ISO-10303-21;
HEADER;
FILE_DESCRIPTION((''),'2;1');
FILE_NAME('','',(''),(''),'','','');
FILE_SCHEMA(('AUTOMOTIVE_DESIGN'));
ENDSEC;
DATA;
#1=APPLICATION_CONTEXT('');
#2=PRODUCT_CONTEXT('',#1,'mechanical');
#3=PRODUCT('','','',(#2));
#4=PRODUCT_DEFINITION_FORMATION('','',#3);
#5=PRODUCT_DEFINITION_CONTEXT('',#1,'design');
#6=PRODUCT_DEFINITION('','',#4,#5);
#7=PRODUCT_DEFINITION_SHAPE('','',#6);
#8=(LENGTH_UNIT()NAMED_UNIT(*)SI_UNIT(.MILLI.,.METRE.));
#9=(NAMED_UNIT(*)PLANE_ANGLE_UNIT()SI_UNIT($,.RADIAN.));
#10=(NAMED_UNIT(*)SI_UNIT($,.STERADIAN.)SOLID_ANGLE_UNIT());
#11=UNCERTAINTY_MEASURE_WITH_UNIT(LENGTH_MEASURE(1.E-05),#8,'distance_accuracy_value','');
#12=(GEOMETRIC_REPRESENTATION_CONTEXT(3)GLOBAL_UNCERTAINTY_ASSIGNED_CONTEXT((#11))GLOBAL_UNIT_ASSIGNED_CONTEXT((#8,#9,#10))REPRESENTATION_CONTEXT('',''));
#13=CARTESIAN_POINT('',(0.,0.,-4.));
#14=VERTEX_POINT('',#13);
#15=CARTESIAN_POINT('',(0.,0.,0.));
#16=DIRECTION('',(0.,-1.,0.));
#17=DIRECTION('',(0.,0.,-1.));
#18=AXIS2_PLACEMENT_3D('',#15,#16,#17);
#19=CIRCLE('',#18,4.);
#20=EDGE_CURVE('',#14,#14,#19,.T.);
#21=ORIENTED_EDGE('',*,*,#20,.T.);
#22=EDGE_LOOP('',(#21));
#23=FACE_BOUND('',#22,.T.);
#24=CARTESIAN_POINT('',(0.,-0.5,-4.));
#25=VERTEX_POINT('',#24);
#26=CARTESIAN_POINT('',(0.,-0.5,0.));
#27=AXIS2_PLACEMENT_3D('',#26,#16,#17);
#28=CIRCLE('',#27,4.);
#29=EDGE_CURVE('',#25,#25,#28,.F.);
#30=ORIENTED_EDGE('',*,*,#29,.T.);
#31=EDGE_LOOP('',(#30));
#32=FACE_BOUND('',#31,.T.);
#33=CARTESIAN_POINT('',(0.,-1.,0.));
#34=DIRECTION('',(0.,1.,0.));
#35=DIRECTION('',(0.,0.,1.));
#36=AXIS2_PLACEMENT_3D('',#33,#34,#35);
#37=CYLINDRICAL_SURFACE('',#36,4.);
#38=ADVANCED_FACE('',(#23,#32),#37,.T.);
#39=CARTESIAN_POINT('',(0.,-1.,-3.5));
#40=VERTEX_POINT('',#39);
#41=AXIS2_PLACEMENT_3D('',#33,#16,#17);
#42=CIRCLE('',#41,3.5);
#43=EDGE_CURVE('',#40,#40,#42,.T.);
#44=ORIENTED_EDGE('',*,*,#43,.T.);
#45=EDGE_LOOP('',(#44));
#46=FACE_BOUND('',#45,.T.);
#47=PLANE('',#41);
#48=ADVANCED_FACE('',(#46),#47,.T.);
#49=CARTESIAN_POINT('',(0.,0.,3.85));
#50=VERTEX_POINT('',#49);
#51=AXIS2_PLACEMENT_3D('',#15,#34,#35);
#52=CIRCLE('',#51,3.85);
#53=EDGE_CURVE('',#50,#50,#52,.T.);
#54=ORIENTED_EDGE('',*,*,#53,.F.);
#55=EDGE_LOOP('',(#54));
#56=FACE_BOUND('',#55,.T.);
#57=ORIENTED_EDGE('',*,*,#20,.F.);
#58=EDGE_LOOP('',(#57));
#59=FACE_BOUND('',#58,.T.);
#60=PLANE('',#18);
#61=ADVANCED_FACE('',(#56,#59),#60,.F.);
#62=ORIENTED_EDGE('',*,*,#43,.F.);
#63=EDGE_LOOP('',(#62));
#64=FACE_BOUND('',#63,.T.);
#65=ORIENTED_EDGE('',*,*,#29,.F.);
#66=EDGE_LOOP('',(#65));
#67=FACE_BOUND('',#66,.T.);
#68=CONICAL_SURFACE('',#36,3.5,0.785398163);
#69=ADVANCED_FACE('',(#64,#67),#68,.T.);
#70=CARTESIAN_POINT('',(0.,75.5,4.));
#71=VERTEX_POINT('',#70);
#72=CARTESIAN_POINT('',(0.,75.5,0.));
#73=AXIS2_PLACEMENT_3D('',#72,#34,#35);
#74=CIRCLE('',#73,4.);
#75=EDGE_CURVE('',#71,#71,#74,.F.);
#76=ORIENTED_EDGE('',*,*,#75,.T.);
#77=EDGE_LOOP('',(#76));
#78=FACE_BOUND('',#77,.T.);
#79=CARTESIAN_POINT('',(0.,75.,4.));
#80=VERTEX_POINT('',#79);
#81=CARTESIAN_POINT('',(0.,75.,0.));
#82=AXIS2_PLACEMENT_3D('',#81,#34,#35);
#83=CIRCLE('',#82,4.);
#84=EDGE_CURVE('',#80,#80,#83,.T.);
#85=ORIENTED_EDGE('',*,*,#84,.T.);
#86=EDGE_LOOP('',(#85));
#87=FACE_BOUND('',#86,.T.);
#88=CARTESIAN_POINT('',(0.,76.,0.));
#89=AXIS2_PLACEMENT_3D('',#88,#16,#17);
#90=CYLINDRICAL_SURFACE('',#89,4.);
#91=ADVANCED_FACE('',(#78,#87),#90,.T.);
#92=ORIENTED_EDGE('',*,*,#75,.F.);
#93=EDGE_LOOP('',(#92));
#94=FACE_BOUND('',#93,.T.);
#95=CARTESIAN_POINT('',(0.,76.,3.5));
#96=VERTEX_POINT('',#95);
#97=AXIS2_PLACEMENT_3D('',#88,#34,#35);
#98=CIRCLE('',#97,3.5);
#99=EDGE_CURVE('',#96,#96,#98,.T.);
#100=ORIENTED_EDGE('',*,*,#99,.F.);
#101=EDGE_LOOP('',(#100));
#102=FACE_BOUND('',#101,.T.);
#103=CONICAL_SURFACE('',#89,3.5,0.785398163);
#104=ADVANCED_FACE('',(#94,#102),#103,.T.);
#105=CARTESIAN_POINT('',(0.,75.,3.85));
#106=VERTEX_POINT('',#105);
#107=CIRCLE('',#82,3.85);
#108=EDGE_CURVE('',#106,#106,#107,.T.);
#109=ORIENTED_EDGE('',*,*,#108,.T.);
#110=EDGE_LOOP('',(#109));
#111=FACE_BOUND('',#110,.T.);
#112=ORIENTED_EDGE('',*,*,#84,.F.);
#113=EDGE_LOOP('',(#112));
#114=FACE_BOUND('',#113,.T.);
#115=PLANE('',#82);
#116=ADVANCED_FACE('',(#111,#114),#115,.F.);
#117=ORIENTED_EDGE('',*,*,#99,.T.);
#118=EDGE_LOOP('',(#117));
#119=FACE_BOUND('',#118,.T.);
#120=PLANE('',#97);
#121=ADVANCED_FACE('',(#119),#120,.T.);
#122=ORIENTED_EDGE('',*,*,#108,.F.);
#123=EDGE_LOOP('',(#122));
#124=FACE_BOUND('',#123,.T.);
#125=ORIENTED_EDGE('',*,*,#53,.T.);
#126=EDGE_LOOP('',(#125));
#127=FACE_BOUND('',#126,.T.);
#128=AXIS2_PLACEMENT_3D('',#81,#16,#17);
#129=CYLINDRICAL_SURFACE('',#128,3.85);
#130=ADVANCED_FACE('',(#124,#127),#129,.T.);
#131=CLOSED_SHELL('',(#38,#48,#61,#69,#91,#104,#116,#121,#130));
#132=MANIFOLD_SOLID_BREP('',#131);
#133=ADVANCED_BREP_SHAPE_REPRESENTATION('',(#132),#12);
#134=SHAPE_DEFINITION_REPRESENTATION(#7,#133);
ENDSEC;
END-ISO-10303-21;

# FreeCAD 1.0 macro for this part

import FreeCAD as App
import Part
import Sketcher
from FreeCAD import Vector
Q = App.Units.Quantity


def edges_at(feature, points):
    """Names of the edges that pass closest to the given points."""
    edges = feature.Shape.Edges
    near = lambda p: min(range(len(edges)), key=lambda i: edges[i].distToShape(Part.Vertex(*p))[0])
    return sorted({f"Edge{near(p) + 1}" for p in points})

doc = App.newDocument("Part")
body = doc.addObject("PartDesign::Body", "Body")

sketch1 = body.newObject("Sketcher::SketchObject", "Sketch")
sketch1.AttachmentSupport = (doc.getObject("XZ_Plane"), [""])
sketch1.MapMode = "FlatFace"
sketch1.addGeometry(Part.Circle(Vector(0, 0, 0), Vector(0, 0, 1), 3.85), False)
sketch1.addConstraint([
    Sketcher.Constraint("Coincident", 0, 3, -1, 1),
    Sketcher.Constraint("Diameter", 0, Q("7.7 mm")),
])
pad1 = body.newObject("PartDesign::Pad", "Pad")
pad1.Profile = sketch1
pad1.Length = 75
pad1.Reversed = True

sketch2 = body.newObject("Sketcher::SketchObject", "Sketch001")
sketch2.AttachmentSupport = (doc.getObject("XZ_Plane"), [""])
sketch2.MapMode = "FlatFace"
sketch2.AttachmentOffset = App.Placement(Vector(0, 0, -75), App.Rotation())
sketch2.addGeometry(Part.Circle(Vector(0, 0, 0), Vector(0, 0, 1), 4), False)
sketch2.addConstraint([
    Sketcher.Constraint("Coincident", 0, 3, -1, 1),
    Sketcher.Constraint("Diameter", 0, Q("8 mm")),
])
pad2 = body.newObject("PartDesign::Pad", "Pad001")
pad2.Profile = sketch2
pad2.Length = 1
pad2.Reversed = True

sketch3 = body.newObject("Sketcher::SketchObject", "Sketch002")
sketch3.AttachmentSupport = (doc.getObject("XZ_Plane"), [""])
sketch3.MapMode = "FlatFace"
sketch3.AttachmentOffset = App.Placement(Vector(0, 0, 1), App.Rotation())
sketch3.addGeometry(Part.Circle(Vector(0, 0, 0), Vector(0, 0, 1), 4), False)
sketch3.addConstraint([
    Sketcher.Constraint("Coincident", 0, 3, -1, 1),
    Sketcher.Constraint("Diameter", 0, Q("8 mm")),
])
pad3 = body.newObject("PartDesign::Pad", "Pad002")
pad3.Profile = sketch3
pad3.Length = 1
pad3.Reversed = True
doc.recompute()

chamfer = body.newObject("PartDesign::Chamfer", "Chamfer")
chamfer.Base = (pad3, edges_at(pad3, [(0, -1, -4), (0, 76, -4)]))
chamfer.Size = 0.5

doc.recompute()
